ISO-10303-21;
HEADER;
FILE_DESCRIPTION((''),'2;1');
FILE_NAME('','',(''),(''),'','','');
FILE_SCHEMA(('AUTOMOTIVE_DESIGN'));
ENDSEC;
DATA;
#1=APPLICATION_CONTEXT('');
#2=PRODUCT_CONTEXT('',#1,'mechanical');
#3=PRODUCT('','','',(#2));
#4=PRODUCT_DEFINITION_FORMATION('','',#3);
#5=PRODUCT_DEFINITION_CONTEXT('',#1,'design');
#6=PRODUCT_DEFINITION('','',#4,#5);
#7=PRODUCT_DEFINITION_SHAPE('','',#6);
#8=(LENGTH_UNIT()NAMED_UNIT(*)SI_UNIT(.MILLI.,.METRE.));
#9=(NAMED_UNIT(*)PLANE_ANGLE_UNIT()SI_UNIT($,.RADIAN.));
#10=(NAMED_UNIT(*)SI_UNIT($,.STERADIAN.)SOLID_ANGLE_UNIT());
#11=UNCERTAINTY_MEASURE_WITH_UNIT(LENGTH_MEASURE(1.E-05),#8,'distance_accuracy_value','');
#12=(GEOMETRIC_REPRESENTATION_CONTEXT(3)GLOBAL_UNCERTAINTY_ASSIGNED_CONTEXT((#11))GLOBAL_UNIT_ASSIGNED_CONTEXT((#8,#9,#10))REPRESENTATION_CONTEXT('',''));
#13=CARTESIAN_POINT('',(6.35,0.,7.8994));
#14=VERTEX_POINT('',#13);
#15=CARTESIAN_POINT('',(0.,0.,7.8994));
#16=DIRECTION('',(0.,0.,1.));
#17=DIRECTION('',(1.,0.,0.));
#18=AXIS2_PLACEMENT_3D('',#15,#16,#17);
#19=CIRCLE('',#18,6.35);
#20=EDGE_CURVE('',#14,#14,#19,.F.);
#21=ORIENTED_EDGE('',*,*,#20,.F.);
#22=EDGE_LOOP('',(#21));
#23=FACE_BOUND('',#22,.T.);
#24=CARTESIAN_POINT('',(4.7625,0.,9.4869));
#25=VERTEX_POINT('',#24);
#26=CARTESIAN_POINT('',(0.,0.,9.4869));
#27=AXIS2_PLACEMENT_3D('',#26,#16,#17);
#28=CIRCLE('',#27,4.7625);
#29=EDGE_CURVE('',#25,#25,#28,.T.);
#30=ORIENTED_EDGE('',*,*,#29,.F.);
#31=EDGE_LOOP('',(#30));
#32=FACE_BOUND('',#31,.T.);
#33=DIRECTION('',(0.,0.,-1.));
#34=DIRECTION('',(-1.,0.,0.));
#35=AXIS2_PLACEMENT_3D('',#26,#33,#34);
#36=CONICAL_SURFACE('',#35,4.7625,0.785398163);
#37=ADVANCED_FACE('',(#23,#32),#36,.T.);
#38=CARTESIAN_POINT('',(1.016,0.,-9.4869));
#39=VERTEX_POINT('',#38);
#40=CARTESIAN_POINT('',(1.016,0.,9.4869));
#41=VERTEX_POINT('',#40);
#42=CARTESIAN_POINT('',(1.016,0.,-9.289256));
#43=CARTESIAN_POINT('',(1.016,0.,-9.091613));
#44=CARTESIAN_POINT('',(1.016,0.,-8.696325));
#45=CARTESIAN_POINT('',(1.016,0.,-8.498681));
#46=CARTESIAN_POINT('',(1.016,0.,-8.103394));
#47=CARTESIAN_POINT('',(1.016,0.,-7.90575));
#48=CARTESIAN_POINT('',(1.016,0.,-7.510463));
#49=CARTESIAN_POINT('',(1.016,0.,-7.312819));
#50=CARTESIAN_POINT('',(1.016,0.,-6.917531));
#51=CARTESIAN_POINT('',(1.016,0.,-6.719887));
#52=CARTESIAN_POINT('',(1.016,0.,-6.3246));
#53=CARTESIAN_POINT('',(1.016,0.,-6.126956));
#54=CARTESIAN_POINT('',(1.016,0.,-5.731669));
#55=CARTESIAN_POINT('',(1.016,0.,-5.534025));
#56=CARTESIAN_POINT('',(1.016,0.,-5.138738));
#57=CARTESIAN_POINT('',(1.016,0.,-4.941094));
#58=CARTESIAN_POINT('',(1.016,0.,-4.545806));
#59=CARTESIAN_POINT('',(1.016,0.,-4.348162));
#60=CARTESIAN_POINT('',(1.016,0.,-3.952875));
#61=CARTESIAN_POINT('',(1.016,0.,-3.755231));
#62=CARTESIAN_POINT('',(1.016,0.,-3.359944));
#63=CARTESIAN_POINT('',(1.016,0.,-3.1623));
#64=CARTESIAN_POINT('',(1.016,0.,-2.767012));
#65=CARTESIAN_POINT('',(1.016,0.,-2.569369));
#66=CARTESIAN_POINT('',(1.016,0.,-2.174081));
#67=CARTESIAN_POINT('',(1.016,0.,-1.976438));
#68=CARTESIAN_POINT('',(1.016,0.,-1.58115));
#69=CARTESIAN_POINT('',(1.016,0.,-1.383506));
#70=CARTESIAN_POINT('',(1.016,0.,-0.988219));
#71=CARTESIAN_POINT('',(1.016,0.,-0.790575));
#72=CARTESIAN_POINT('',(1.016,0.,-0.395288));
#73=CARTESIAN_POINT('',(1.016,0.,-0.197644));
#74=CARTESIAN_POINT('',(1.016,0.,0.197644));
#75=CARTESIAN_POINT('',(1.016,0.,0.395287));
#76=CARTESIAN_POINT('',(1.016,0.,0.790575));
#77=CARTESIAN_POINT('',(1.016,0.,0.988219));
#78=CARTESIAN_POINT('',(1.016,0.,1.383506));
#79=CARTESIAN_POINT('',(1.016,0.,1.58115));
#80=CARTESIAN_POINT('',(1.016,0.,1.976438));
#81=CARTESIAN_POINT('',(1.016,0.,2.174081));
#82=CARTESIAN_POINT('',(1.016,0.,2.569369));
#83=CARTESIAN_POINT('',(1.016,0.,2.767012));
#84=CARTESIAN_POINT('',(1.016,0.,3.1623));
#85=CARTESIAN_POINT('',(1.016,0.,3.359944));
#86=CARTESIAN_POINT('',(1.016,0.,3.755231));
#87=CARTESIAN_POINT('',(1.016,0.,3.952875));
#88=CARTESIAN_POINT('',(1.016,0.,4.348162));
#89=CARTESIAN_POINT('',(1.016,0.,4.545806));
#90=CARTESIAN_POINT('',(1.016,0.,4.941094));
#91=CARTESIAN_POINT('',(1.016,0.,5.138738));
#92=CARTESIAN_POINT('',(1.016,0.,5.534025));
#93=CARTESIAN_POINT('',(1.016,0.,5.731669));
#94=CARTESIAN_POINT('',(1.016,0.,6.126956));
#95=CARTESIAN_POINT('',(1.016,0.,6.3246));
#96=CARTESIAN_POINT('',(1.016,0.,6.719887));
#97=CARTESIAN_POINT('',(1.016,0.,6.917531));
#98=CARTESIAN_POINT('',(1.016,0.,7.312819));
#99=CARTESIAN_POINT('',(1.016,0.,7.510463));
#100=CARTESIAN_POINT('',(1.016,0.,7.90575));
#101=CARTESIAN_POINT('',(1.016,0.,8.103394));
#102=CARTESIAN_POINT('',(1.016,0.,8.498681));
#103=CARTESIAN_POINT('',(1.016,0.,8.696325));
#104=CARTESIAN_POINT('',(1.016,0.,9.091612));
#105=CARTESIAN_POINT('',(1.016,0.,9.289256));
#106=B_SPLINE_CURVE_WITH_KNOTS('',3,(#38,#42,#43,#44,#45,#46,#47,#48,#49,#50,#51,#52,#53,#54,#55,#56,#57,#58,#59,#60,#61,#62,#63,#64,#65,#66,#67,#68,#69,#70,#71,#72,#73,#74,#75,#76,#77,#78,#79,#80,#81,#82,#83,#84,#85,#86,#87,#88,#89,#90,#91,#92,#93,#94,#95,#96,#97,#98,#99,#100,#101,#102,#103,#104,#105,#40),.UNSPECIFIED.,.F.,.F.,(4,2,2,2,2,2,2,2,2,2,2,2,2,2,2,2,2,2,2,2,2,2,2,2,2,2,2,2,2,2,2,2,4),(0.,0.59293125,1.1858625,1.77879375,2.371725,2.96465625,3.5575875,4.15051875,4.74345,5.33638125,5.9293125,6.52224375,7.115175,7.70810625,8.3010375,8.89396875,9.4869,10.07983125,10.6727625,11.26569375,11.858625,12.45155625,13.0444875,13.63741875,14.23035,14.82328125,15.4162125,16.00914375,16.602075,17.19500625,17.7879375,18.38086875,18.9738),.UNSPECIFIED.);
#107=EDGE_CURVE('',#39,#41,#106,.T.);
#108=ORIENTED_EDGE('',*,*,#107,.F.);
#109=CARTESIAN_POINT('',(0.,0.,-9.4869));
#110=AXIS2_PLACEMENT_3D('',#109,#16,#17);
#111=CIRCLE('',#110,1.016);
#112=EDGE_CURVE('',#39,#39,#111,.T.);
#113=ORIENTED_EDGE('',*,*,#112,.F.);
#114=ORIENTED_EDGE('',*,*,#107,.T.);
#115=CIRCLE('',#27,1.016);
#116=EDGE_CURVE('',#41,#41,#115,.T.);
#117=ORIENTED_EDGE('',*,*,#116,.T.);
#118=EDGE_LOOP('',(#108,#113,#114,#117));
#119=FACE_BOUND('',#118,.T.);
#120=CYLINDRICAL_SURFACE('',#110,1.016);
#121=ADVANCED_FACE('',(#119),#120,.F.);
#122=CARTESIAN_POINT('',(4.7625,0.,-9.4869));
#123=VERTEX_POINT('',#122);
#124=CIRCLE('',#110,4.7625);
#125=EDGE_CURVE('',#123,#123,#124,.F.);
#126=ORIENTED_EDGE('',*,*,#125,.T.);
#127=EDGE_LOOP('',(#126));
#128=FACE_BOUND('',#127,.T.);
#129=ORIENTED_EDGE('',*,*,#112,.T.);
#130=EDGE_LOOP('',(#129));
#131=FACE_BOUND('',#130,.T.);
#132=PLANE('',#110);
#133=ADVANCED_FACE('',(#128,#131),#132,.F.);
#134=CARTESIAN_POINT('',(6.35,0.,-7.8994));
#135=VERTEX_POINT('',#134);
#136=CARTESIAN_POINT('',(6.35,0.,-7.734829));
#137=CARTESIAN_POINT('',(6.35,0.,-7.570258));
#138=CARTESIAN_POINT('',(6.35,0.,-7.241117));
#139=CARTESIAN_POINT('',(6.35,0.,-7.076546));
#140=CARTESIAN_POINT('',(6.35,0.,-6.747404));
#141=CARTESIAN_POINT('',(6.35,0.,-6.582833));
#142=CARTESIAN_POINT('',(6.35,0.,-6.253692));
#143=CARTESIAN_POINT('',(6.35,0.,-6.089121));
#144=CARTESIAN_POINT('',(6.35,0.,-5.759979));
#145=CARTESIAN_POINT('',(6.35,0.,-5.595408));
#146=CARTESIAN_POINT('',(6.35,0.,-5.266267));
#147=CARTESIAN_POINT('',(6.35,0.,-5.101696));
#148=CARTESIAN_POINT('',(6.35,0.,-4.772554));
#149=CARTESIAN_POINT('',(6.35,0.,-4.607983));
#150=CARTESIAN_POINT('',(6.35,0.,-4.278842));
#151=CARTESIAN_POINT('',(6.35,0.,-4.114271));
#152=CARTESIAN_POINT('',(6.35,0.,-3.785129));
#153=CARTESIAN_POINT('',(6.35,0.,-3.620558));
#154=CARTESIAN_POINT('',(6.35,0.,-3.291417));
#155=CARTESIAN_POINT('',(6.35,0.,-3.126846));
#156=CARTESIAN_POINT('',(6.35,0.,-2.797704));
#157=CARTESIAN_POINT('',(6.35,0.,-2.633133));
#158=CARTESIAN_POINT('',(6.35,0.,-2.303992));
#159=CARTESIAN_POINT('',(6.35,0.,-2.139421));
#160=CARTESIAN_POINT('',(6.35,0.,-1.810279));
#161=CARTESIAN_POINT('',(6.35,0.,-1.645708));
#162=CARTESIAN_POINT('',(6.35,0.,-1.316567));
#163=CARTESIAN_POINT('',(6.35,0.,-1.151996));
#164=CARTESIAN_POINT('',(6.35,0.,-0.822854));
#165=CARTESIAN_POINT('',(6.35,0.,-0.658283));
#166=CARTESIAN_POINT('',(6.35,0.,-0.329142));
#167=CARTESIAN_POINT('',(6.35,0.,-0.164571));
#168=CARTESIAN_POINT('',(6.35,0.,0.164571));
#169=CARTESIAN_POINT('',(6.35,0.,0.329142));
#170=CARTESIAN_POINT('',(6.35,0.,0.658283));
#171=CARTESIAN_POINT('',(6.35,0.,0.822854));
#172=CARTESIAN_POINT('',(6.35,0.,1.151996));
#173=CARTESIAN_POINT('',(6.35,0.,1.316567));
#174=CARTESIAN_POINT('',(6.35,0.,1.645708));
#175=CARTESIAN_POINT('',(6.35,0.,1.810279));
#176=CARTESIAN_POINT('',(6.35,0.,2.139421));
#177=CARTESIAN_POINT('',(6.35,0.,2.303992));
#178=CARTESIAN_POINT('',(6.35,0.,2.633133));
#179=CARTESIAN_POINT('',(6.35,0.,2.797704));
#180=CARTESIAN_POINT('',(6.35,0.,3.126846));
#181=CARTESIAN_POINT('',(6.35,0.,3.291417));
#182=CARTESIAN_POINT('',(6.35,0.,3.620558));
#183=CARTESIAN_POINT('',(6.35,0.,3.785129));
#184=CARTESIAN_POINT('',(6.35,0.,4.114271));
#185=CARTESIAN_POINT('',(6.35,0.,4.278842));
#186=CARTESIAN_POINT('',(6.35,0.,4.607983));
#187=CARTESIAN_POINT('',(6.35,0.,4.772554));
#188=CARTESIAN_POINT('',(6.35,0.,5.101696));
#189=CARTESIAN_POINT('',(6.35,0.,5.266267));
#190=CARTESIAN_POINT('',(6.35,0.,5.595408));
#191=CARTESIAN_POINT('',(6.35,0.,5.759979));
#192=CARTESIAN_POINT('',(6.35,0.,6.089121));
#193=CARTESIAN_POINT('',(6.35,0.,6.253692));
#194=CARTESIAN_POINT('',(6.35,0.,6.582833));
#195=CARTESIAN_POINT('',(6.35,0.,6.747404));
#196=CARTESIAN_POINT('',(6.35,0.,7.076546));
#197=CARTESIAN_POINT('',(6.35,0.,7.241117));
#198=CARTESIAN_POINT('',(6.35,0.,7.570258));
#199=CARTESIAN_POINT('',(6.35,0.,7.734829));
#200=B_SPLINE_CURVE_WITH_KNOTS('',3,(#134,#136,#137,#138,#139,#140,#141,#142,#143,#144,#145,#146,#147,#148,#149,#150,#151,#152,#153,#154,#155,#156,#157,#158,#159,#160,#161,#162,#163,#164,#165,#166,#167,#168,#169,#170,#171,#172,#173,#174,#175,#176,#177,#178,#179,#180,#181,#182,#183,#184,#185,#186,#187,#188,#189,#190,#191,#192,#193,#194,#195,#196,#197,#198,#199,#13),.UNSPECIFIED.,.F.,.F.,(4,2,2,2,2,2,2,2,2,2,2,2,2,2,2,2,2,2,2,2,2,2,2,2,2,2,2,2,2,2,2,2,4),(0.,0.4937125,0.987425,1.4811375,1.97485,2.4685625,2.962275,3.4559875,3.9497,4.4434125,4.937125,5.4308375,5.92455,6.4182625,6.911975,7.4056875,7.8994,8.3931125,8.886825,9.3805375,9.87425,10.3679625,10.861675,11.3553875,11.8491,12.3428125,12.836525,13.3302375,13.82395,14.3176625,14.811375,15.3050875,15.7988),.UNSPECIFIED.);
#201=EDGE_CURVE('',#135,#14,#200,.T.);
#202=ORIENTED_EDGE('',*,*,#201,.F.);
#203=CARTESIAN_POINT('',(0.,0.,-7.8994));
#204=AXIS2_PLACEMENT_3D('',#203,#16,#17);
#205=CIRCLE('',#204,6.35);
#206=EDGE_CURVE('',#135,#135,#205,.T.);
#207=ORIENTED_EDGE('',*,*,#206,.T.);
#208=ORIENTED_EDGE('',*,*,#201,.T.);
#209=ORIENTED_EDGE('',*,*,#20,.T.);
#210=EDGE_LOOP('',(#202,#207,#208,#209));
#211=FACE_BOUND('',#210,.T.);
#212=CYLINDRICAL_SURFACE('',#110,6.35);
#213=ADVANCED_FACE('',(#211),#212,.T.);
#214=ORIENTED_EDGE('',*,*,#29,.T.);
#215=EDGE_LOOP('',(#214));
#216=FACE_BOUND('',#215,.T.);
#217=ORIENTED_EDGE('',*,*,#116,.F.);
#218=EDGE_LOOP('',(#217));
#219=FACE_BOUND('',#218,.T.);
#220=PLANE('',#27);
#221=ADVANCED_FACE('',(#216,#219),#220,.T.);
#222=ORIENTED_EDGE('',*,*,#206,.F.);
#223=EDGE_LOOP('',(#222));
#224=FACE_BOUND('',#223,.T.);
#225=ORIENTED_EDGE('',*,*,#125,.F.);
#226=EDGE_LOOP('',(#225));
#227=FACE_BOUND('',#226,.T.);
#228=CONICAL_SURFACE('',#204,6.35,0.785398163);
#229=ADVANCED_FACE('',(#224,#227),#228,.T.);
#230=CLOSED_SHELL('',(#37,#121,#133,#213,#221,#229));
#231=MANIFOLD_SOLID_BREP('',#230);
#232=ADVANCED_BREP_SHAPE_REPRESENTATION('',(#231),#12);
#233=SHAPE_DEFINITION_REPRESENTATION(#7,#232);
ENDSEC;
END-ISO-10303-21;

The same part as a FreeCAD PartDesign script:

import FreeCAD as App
import Part
import Sketcher

V = App.Vector
Q = App.Units.Quantity


def edges_at(feature, points):
    """Names of the edges that pass closest to the given points."""
    edges = feature.Shape.Edges
    near = lambda p: min(range(len(edges)), key=lambda i: edges[i].distToShape(Part.Vertex(*p))[0])
    return sorted({f"Edge{near(p) + 1}" for p in points})

doc = App.newDocument("Part")
body = doc.addObject("PartDesign::Body", "Body")

sketch1 = body.newObject("Sketcher::SketchObject", "Sketch")
sketch1.AttachmentSupport = (doc.getObject("XY_Plane"), [""])
sketch1.MapMode = "FlatFace"
sketch1.addGeometry(Part.Circle(V(0, 0, 0), V(0, 0, 1), 6.3), False)
sketch1.addGeometry(Part.Circle(V(0, 0, 0), V(0, 0, 1), 1), False)
sketch1.addConstraint(Sketcher.Constraint("Coincident", 0, 3, -1, 1))
sketch1.addConstraint(Sketcher.Constraint("Coincident", 1, 3, -1, 1))
sketch1.addConstraint(Sketcher.Constraint("Diameter", 0, Q("0.5 in")))
sketch1.addConstraint(Sketcher.Constraint("Diameter", 1, Q("0.08 in")))
pad1 = body.newObject("PartDesign::Pad", "Pad")
pad1.Profile = sketch1
pad1.Type = "TwoLengths"
pad1.Length = Q("0.3735 in")
pad1.Length2 = Q("0.3735 in")
doc.recompute()

chamfer = body.newObject("PartDesign::Chamfer", "Chamfer")
chamfer.Base = (pad1, edges_at(pad1, [(-6.35, 0, -9.487), (-6.35, 0, 9.487)]))
chamfer.Size = Q("0.0625 in")

doc.recompute()
